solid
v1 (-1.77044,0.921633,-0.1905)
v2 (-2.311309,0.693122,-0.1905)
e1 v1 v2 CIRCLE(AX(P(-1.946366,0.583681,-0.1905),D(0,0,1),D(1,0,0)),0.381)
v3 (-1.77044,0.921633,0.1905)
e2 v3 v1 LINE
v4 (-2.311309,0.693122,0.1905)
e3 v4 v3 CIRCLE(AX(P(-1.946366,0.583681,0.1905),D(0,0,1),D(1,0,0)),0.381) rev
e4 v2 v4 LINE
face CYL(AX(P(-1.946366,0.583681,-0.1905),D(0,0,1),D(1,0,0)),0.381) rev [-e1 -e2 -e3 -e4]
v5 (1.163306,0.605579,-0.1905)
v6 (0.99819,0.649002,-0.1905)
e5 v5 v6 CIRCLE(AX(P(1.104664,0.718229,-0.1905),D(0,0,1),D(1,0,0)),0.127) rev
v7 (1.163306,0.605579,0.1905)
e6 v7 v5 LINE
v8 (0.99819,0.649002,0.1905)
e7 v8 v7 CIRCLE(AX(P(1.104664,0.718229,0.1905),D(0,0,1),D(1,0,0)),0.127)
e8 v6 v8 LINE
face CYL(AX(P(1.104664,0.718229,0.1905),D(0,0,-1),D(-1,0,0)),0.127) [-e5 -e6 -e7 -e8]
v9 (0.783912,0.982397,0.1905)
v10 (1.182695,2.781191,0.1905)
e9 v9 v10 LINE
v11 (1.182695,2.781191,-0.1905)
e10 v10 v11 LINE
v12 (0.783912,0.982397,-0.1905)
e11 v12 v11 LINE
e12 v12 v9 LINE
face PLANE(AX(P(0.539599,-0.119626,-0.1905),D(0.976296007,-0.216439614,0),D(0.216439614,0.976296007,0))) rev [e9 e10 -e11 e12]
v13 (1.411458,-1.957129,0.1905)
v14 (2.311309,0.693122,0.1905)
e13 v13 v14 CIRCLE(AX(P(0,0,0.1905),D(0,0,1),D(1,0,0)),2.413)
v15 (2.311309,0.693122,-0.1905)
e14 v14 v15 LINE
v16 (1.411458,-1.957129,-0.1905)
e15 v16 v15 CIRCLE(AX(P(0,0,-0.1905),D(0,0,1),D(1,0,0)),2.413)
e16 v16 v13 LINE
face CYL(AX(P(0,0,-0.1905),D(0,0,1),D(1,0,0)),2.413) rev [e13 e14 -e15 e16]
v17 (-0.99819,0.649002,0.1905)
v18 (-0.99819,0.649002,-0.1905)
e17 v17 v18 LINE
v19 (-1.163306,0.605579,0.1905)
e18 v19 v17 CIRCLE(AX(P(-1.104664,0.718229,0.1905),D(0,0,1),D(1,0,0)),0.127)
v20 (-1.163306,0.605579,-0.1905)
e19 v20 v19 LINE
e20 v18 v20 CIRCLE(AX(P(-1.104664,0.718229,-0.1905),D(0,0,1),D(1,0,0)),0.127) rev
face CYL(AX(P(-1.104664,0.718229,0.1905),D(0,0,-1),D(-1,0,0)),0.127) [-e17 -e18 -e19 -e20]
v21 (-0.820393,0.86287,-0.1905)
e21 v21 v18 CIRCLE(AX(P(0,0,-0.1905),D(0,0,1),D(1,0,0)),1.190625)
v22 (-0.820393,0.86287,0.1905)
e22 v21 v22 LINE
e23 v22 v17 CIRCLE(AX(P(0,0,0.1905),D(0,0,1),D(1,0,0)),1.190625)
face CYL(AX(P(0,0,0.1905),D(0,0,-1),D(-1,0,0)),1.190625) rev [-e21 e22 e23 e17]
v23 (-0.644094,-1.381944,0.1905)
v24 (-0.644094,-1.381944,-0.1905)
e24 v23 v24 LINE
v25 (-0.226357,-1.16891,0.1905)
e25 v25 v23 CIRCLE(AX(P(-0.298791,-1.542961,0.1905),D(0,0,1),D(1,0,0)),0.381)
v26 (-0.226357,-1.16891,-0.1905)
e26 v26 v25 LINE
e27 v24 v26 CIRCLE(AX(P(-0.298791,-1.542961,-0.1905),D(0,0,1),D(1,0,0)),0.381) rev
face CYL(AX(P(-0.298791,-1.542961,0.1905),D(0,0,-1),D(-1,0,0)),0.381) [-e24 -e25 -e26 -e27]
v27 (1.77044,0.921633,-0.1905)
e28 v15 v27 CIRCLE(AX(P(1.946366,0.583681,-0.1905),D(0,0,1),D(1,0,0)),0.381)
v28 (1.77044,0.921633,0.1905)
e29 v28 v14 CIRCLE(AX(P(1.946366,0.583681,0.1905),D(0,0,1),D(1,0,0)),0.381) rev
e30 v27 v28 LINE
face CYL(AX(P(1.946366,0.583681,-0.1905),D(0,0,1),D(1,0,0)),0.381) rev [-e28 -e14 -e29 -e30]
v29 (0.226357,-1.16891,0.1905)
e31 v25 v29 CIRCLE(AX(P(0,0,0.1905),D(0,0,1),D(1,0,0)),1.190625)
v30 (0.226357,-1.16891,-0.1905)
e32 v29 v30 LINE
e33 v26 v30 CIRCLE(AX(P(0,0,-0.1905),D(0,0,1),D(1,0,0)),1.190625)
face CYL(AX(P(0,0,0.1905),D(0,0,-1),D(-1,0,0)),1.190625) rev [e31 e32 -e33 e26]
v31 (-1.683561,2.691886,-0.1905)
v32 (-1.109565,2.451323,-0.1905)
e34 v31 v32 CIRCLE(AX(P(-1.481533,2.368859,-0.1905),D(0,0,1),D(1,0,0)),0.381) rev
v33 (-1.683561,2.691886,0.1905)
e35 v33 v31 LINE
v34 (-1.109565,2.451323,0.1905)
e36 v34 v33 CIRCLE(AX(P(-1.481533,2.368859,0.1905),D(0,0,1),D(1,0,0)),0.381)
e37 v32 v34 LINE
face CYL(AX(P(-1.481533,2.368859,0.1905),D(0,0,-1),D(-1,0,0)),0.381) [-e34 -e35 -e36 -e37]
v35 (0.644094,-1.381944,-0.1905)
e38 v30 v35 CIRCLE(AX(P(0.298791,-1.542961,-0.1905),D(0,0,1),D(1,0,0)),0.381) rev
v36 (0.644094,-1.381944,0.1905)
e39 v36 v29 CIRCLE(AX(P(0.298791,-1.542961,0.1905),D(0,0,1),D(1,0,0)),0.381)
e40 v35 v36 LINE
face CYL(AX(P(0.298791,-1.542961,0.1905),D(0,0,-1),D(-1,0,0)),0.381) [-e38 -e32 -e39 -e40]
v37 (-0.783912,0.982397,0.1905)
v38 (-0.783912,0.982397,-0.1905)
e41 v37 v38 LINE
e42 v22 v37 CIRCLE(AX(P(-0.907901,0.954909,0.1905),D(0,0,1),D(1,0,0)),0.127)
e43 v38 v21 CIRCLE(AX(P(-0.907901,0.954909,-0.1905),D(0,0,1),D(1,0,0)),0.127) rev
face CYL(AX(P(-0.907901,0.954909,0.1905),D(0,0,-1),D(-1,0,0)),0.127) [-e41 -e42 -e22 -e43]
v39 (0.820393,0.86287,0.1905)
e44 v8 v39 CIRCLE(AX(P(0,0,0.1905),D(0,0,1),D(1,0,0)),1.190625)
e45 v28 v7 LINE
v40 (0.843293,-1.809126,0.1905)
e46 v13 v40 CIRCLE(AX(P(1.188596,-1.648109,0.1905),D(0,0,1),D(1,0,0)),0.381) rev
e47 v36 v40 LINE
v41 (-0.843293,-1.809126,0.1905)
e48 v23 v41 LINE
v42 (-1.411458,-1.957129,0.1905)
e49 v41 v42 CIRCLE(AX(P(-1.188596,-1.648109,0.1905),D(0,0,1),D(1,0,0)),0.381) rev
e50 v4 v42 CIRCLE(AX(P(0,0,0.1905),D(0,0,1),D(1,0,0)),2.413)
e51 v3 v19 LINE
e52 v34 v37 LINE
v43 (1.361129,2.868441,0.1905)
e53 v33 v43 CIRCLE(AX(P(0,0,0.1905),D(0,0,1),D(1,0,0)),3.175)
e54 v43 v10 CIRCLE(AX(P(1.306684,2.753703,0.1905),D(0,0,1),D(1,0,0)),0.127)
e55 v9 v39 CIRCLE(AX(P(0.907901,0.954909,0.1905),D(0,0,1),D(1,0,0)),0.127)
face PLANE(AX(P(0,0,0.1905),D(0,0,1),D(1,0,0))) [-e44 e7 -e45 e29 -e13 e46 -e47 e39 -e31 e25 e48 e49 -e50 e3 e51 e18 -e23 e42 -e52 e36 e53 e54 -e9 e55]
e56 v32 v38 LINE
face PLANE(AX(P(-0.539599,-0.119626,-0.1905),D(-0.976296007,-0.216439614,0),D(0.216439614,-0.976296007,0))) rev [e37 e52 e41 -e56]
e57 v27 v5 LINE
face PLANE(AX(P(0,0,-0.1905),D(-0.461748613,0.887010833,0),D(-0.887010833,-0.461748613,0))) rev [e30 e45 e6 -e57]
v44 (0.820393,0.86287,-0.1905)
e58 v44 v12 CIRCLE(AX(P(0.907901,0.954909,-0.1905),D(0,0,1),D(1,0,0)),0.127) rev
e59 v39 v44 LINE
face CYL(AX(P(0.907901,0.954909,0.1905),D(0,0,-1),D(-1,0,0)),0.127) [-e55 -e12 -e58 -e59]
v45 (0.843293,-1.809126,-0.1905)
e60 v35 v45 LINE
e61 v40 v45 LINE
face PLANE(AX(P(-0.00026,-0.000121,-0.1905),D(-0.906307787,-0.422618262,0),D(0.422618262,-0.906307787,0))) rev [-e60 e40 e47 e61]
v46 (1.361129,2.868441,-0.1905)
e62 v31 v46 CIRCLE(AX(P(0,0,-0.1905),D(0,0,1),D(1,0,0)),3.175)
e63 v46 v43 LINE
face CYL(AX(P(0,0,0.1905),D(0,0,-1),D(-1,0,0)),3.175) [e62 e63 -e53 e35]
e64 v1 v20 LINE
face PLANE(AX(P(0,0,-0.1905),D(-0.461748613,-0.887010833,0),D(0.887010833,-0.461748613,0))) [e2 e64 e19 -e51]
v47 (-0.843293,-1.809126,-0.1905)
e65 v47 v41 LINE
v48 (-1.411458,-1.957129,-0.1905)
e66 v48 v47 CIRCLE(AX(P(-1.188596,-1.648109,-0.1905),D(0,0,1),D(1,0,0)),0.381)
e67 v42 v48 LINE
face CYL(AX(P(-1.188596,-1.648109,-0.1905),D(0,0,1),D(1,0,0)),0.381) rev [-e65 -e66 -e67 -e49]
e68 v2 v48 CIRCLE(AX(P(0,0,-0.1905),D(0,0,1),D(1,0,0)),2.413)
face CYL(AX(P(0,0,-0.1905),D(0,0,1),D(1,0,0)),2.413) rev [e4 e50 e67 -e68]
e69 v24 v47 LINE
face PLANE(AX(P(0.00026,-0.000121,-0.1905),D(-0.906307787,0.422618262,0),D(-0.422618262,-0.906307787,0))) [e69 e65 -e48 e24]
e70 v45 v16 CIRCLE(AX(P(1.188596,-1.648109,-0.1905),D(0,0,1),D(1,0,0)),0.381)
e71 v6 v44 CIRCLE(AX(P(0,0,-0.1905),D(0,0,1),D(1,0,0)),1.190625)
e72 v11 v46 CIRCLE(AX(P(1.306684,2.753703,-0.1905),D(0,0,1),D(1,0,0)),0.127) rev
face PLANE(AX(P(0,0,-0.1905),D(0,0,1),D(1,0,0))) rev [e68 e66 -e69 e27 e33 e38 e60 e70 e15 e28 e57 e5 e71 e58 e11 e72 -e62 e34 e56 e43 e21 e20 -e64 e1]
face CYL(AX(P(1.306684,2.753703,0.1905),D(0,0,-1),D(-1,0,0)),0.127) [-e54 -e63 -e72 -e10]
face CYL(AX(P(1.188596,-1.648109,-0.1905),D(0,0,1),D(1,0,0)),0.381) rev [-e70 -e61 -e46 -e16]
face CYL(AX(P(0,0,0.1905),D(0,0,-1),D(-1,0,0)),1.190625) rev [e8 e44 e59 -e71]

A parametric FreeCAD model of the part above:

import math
import FreeCAD as App
import Part
import Sketcher
Q = App.Units.Quantity


def edges_at(feature, points):
    """Names of the edges that pass closest to the given points."""
    edges = feature.Shape.Edges
    near = lambda p: min(range(len(edges)), key=lambda i: edges[i].distToShape(Part.Vertex(*p))[0])
    return sorted({f"Edge{near(p) + 1}" for p in points})


def add_polygon(sketch, points):
    """Adds a closed chain of lines whose ends are joined by coincident constraints."""
    first, n = sketch.GeometryCount, len(points)
    for a, b in zip(points, points[1:] + points[:1]):
        sketch.addGeometry(Part.LineSegment(App.Vector(*a, 0), App.Vector(*b, 0)), False)
    for i in range(n):
        sketch.addConstraint(Sketcher.Constraint("Coincident", first + i, 2, first + (i + 1) % n, 1))

doc = App.newDocument("Part")
body = doc.addObject("PartDesign::Body", "Body")

# Sketch on XY plane
sketch1 = body.newObject("Sketcher::SketchObject", "Sketch")
sketch1.AttachmentSupport = (doc.getObject("XY_Plane"), [""])
sketch1.MapMode = "FlatFace"
sketch1.addGeometry([
    Part.Circle(App.Vector(0, 0, 0), App.Vector(0, 0, 1), 3.175),
    Part.Circle(App.Vector(0, 0, 0), App.Vector(0, 0, 1), 1.190625),
], False)
sketch1.addConstraint([
    Sketcher.Constraint("Coincident", 0, 3, -1, 1),
    Sketcher.Constraint("Coincident", 1, 3, -1, 1),
    Sketcher.Constraint("Diameter", 0, Q("0.25 in")),
    Sketcher.Constraint("Diameter", 1, Q("0.09375 in")),
])
pad1 = body.newObject("PartDesign::Pad", "Pad")
pad1.Profile = sketch1
pad1.Length = Q("0.015 in")
pad1.Midplane = True

# Sketch on XY plane
sketch2 = body.newObject("Sketcher::SketchObject", "Sketch001")
sketch2.AttachmentSupport = (doc.getObject("XY_Plane"), [""])
sketch2.MapMode = "FlatFace"
sketch2.AttachmentOffset = App.Placement(App.Vector(0, 0, 0.0075 * 25.4), App.Rotation())
add_polygon(sketch2, [(-0.635, 0.3107), (0.635, 0.3107), (1.27, 3.175), (-1.27, 3.175)])  # lines 0-3
sketch2.addConstraint([
    Sketcher.Constraint("Horizontal", 0),
    Sketcher.Constraint("Horizontal", 2),
    Sketcher.Constraint("Equal", 1, 3),
    Sketcher.Constraint("DistanceX", 2, 2, 2, 1, Q("0.1 in")),
    Sketcher.Constraint("DistanceX", 0, 1, 0, 2, Q("0.05 in")),
    Sketcher.Constraint("Angle", 1, Q("77.5 deg")),
    Sketcher.Constraint("DistanceX", -1, 1, 1, 2, Q("0.05 in")),
    Sketcher.Constraint("DistanceY", -1, 1, 1, 2, Q("0.125 in")),
])
pocket1 = body.newObject("PartDesign::Pocket", "Pocket")
pocket1.Profile = sketch2
pocket1.Type = "ThroughAll"

# Sketch on XY plane
sketch3 = body.newObject("Sketcher::SketchObject", "Sketch002")
sketch3.AttachmentSupport = (doc.getObject("XY_Plane"), [""])
sketch3.MapMode = "FlatFace"
sketch3.AttachmentOffset = App.Placement(App.Vector(0, 0, 0.0075 * 25.4), App.Rotation())
sketch3.addGeometry([
    Part.LineSegment(App.Vector(0.50292, -1.079194, 0), App.Vector(1.019518, -2.187042, 0)),  # 0
    Part.ArcOfCircle(Part.Circle(App.Vector(0, 0, 0), App.Vector(0, 0, 1), 2.413), math.radians(-65.006808), math.radians(27.5)),  # 1
    Part.LineSegment(App.Vector(2.140357, 1.114199, 0), App.Vector(1.056097, 0.549769, 0)),  # 2
    Part.ArcOfCircle(Part.Circle(App.Vector(0, 0, 0), App.Vector(0, 0, 1), 1.190625), math.radians(-65.013797), math.radians(27.5)),  # 3
    Part.LineSegment(App.Vector(-1.056097, 0.549769, 0), App.Vector(-2.140357, 1.114199, 0)),  # 4
    Part.ArcOfCircle(Part.Circle(App.Vector(0, 0, 0), App.Vector(0, 0, 1), 2.413), math.radians(152.5), math.radians(245.006808)),  # 5
    Part.LineSegment(App.Vector(-1.019518, -2.187042, 0), App.Vector(-0.50292, -1.079194, 0)),  # 6
    Part.ArcOfCircle(Part.Circle(App.Vector(0, 0, 0), App.Vector(0, 0, 1), 1.190625), math.radians(152.5), math.radians(245.013797)),  # 7
], False)
sketch3.addConstraint([
    Sketcher.Constraint("Coincident", 0, 2, 1, 1),
    Sketcher.Constraint("Coincident", 1, 2, 2, 1),
    Sketcher.Constraint("Coincident", 2, 2, 3, 2),
    Sketcher.Constraint("Coincident", 3, 1, 0, 1),
    Sketcher.Constraint("Coincident", 4, 2, 5, 1),
    Sketcher.Constraint("Coincident", 5, 2, 6, 1),
    Sketcher.Constraint("Coincident", 6, 2, 7, 2),
    Sketcher.Constraint("Coincident", 7, 1, 4, 1),
    Sketcher.Constraint("Coincident", 1, 3, -1, 1),
    Sketcher.Constraint("Coincident", 3, 3, -1, 1),
    Sketcher.Constraint("Coincident", 5, 3, -1, 1),
    Sketcher.Constraint("Coincident", 7, 3, -1, 1),
    Sketcher.Constraint("Equal", 1, 5),
    Sketcher.Constraint("Equal", 3, 7),
    Sketcher.Constraint("Horizontal", 1, 2, 4, 2),
    Sketcher.Constraint("Horizontal", 0, 2, 5, 2),
    Sketcher.Constraint("Horizontal", 3, 1, 6, 2),
    Sketcher.Constraint("Horizontal", 2, 2, 7, 1),
    Sketcher.Constraint("Angle", 0, Q("-65 deg")),
    Sketcher.Constraint("Radius", 1, Q("0.095 in")),
    Sketcher.Constraint("Radius", 3, Q("0.046875 in")),
    Sketcher.Constraint("Angle", 2, Q("-152.5 deg")),
    Sketcher.Constraint("DistanceX", -1, 1, 3, 1, Q("0.0198 in")),
    Sketcher.Constraint("DistanceY", -1, 1, 1, 2, Q("1.114199 mm")),
])
pocket2 = body.newObject("PartDesign::Pocket", "Pocket001")
pocket2.Profile = sketch3
pocket2.Type = "ThroughAll"
doc.recompute()

fillet = body.newObject("PartDesign::Fillet", "Fillet")
fillet.Base = (pocket2, edges_at(pocket2, [
    (-1.216, 2.933, 0),
    (-2.14, 1.114, 0),
    (-1.02, -2.187, 0),
    (-0.503, -1.079, 0),
    (0.503, -1.079, 0),
    (1.02, -2.187, 0),
    (2.14, 1.114, 0),
]))
fillet.Radius = Q("0.015 in")
doc.recompute()

fillet2 = body.newObject("PartDesign::Fillet", "Fillet001")
fillet2.Base = (fillet, edges_at(fillet, [
    (1.216, 2.933, 0),
    (-0.768, 0.91, 0),
    (-1.056, 0.55, 0),
    (1.056, 0.55, 0),
    (0.768, 0.91, 0),
]))
fillet2.Radius = Q("0.005 in")

doc.recompute()
